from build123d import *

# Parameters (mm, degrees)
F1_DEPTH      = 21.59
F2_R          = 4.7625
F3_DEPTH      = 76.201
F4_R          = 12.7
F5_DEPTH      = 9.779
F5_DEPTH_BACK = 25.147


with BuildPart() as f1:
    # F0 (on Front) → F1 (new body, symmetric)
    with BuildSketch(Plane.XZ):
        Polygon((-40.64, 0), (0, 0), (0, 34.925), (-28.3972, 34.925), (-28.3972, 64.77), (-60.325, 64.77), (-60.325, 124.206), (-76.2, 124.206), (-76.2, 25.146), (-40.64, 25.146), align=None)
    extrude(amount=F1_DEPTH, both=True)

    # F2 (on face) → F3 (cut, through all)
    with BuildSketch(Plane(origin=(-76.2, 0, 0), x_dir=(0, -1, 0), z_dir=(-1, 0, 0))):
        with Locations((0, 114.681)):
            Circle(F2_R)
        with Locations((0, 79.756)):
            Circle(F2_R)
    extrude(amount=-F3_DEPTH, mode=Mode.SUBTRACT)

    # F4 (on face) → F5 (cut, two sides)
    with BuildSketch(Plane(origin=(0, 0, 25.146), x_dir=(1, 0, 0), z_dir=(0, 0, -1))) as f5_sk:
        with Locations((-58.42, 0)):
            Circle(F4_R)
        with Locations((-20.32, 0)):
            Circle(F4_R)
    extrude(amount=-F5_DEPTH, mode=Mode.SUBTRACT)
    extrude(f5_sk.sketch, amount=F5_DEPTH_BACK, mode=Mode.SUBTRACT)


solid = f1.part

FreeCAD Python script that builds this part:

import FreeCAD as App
import Part
import Sketcher
Q = App.Units.Quantity


def add_polygon(sketch, points):
    """Adds a closed chain of lines whose ends are joined by coincident constraints."""
    first, n = sketch.GeometryCount, len(points)
    for a, b in zip(points, points[1:] + points[:1]):
        sketch.addGeometry(Part.LineSegment(App.Vector(*a, 0), App.Vector(*b, 0)), False)
    for i in range(n):
        sketch.addConstraint(Sketcher.Constraint("Coincident", first + i, 2, first + (i + 1) % n, 1))

doc = App.newDocument("Part")
body = doc.addObject("PartDesign::Body", "Body")

sketch1 = body.newObject("Sketcher::SketchObject", "Sketch")
sketch1.AttachmentSupport = (doc.getObject("XZ_Plane"), [""])
sketch1.MapMode = "FlatFace"
add_polygon(sketch1, [(-40.64, 0), (0, 0), (0, 34.925), (-28.3972, 34.925), (-28.3972, 64.77), (-60.325, 64.77), (-60.325, 124.206), (-76.2, 124.206), (-76.2, 25.146), (-40.64, 25.146)])
sketch1.addConstraint([
    Sketcher.Constraint("Horizontal", 0),
    Sketcher.Constraint("Vertical", 1),
    Sketcher.Constraint("Horizontal", 2),
    Sketcher.Constraint("Vertical", 3),
    Sketcher.Constraint("Horizontal", 4),
    Sketcher.Constraint("Vertical", 5),
    Sketcher.Constraint("Horizontal", 6),
    Sketcher.Constraint("Vertical", 7),
    Sketcher.Constraint("Horizontal", 8),
    Sketcher.Constraint("Vertical", 9),
    Sketcher.Constraint("Coincident", 0, 2, -1, 1),
    Sketcher.Constraint("DistanceX", 0, 1, 0, 2, Q("1.6 in")),
    Sketcher.Constraint("DistanceX", 8, 1, 8, 2, Q("1.4 in")),
    Sketcher.Constraint("DistanceY", 7, 2, 7, 1, Q("3.9 in")),
    Sketcher.Constraint("DistanceY", 5, 1, 5, 2, Q("2.34 in")),
    Sketcher.Constraint("DistanceY", 9, 2, 9, 1, Q("0.99 in")),
    Sketcher.Constraint("DistanceX", 2, 2, 2, 1, Q("1.118 in")),
    Sketcher.Constraint("DistanceX", 4, 2, 4, 1, Q("1.257 in")),
    Sketcher.Constraint("DistanceY", 1, 1, 1, 2, Q("1.375 in")),
])
pad1 = body.newObject("PartDesign::Pad", "Pad")
pad1.Profile = sketch1
pad1.Length = Q("1.7 in")
pad1.Midplane = True

sketch2 = body.newObject("Sketcher::SketchObject", "Sketch001")
sketch2.AttachmentSupport = (doc.getObject("YZ_Plane"), [""])
sketch2.MapMode = "FlatFace"
sketch2.AttachmentOffset = App.Placement(App.Vector(0, 0, -3 * 25.4), App.Rotation())
sketch2.addGeometry([
    Part.Circle(App.Vector(0, 114.681, 0), App.Vector(0, 0, 1), 4.7625),
    Part.Circle(App.Vector(0, 79.756, 0), App.Vector(0, 0, 1), 4.7625),
], False)
sketch2.addConstraint([
    Sketcher.Constraint("Equal", 0, 1),
    Sketcher.Constraint("PointOnObject", 0, 3, -2),
    Sketcher.Constraint("PointOnObject", 1, 3, -2),
    Sketcher.Constraint("Diameter", 0, Q("0.375 in")),
    Sketcher.Constraint("DistanceY", -1, 1, 1, 3, Q("3.14 in")),
    Sketcher.Constraint("DistanceY", -1, 1, 0, 3, Q("4.515 in")),
])
pocket1 = body.newObject("PartDesign::Pocket", "Pocket")
pocket1.Profile = sketch2
pocket1.Type = "ThroughAll"
pocket1.Reversed = True

sketch3 = body.newObject("Sketcher::SketchObject", "Sketch002")
sketch3.AttachmentSupport = (doc.getObject("XY_Plane"), [""])
sketch3.MapMode = "FlatFace"
sketch3.AttachmentOffset = App.Placement(App.Vector(0, 0, 0.99 * 25.4), App.Rotation())
sketch3.addGeometry([
    Part.Circle(App.Vector(-58.42, 0, 0), App.Vector(0, 0, 1), 12.7),
    Part.Circle(App.Vector(-20.32, 0, 0), App.Vector(0, 0, 1), 12.7),
], False)
sketch3.addConstraint([
    Sketcher.Constraint("Equal", 0, 1),
    Sketcher.Constraint("PointOnObject", 0, 3, -1),
    Sketcher.Constraint("PointOnObject", 1, 3, -1),
    Sketcher.Constraint("Diameter", 0, Q("1 in")),
    Sketcher.Constraint("DistanceX", 0, 3, -1, 1, Q("2.3 in")),
    Sketcher.Constraint("DistanceX", 1, 3, -1, 1, Q("0.8 in")),
])
pocket2 = body.newObject("PartDesign::Pocket", "Pocket001")
pocket2.Profile = sketch3
pocket2.Type = "TwoLengths"
pocket2.Length = Q("0.385 in")
pocket2.Length2 = 25.147
pocket2.Reversed = True

doc.recompute()
